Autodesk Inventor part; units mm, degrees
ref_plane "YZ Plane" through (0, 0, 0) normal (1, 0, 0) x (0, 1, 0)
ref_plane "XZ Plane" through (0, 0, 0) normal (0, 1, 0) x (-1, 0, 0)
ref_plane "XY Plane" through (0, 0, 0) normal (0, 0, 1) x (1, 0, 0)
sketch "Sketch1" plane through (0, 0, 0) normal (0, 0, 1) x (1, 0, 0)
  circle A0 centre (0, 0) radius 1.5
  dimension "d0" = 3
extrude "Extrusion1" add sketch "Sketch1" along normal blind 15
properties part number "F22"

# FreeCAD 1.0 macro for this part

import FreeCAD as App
import Part
import Sketcher

doc = App.newDocument("Part")
body = doc.addObject("PartDesign::Body", "Body")

sketch1 = doc.addObject("Sketcher::SketchObject", "Sketch")
body.addObject(sketch1)
sketch1.AttachmentSupport = (doc.XY_Plane, [""])
sketch1.MapMode = "FlatFace"
sketch1.addGeometry(Part.Circle(App.Vector(0, 0, 0), App.Vector(0, 0, 1), 1.5), False)
sketch1.addConstraint([
    Sketcher.Constraint("Coincident", 0, 3, -1, 1),
    Sketcher.Constraint("Diameter", 0, 3.0),
])
pad1 = doc.addObject("PartDesign::Pad", "Pad")
body.addObject(pad1)
pad1.Profile = sketch1
pad1.Length = 15

doc.recompute()
